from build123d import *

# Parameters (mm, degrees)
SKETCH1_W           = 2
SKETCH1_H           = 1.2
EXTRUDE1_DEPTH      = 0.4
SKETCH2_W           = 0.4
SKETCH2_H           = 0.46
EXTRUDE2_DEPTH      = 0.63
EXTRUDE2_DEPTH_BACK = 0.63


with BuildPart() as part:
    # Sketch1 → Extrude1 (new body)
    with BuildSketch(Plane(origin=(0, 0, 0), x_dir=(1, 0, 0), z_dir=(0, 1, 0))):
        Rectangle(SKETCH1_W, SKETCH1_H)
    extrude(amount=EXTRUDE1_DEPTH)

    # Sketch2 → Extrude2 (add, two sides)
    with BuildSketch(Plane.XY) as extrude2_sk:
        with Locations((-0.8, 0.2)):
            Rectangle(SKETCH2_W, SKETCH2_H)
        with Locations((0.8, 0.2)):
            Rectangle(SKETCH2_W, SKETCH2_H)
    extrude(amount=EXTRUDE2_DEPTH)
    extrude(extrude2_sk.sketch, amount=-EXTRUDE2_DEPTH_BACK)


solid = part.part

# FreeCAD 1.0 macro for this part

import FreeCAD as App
import Part
import Sketcher
from FreeCAD import Vector
Q = App.Units.Quantity


def add_polygon(sketch, points):
    """Adds a closed chain of lines whose ends are joined by coincident constraints."""
    first, n = sketch.GeometryCount, len(points)
    for a, b in zip(points, points[1:] + points[:1]):
        sketch.addGeometry(Part.LineSegment(App.Vector(*a, 0), App.Vector(*b, 0)), False)
    for i in range(n):
        sketch.addConstraint(Sketcher.Constraint("Coincident", first + i, 2, first + (i + 1) % n, 1))

doc = App.newDocument("Part")
body = doc.addObject("PartDesign::Body", "Body")

# Sketch on XZ plane
sketch1 = body.newObject("Sketcher::SketchObject", "Sketch")
sketch1.AttachmentSupport = (doc.getObject("XZ_Plane"), [""])
sketch1.MapMode = "FlatFace"
add_polygon(sketch1, [(-1, -0.6), (-1, 0.6), (1, 0.6), (1, -0.6)])  # lines 0-3
sketch1.addConstraint([
    Sketcher.Constraint("Vertical", 0),
    Sketcher.Constraint("Horizontal", 1),
    Sketcher.Constraint("Vertical", 2),
    Sketcher.Constraint("Horizontal", 3),
    Sketcher.Constraint("Symmetric", 0, 2, 2, 2, -1, 1),
    Sketcher.Constraint("DistanceX", 1, 1, 1, 2, Q("2 mm")),
    Sketcher.Constraint("DistanceY", 0, 1, 0, 2, Q("1.2 mm")),
])
pad1 = body.newObject("PartDesign::Pad", "Pad")
pad1.Profile = sketch1
pad1.Length = 0.4
pad1.Reversed = True

# Sketch on XY plane
sketch2 = body.newObject("Sketcher::SketchObject", "Sketch001")
sketch2.AttachmentSupport = (doc.getObject("XY_Plane"), [""])
sketch2.MapMode = "FlatFace"
add_polygon(sketch2, [(-1, 0.43), (-1, -0.03), (-0.6, -0.03), (-0.6, 0.43)])  # lines 0-3
add_polygon(sketch2, [(0.6, 0.43), (0.6, -0.03), (1, -0.03), (1, 0.43)])  # lines 4-7
sketch2.addConstraint([
    Sketcher.Constraint("Vertical", 0),
    Sketcher.Constraint("Horizontal", 1),
    Sketcher.Constraint("Vertical", 2),
    Sketcher.Constraint("Horizontal", 3),
    Sketcher.Constraint("Vertical", 4),
    Sketcher.Constraint("Horizontal", 5),
    Sketcher.Constraint("Vertical", 6),
    Sketcher.Constraint("Horizontal", 7),
    Sketcher.Constraint("Symmetric", 1, 2, 4, 2, -2),
    Sketcher.Constraint("Symmetric", 3, 2, 6, 2, -2),
    Sketcher.Constraint("DistanceX", 1, 1, 1, 2, Q("0.4 mm")),
    Sketcher.Constraint("DistanceX", 0, 2, -1, 1, Q("1 mm")),
    Sketcher.Constraint("DistanceY", 0, 2, 0, 1, Q("0.46 mm")),
    Sketcher.Constraint("DistanceY", 0, 2, -1, 1, Q("0.03 mm")),
])
pad2 = body.newObject("PartDesign::Pad", "Pad001")
pad2.Profile = sketch2
pad2.Type = "TwoLengths"
pad2.Length = 0.63
pad2.Length2 = 0.63

doc.recompute()
